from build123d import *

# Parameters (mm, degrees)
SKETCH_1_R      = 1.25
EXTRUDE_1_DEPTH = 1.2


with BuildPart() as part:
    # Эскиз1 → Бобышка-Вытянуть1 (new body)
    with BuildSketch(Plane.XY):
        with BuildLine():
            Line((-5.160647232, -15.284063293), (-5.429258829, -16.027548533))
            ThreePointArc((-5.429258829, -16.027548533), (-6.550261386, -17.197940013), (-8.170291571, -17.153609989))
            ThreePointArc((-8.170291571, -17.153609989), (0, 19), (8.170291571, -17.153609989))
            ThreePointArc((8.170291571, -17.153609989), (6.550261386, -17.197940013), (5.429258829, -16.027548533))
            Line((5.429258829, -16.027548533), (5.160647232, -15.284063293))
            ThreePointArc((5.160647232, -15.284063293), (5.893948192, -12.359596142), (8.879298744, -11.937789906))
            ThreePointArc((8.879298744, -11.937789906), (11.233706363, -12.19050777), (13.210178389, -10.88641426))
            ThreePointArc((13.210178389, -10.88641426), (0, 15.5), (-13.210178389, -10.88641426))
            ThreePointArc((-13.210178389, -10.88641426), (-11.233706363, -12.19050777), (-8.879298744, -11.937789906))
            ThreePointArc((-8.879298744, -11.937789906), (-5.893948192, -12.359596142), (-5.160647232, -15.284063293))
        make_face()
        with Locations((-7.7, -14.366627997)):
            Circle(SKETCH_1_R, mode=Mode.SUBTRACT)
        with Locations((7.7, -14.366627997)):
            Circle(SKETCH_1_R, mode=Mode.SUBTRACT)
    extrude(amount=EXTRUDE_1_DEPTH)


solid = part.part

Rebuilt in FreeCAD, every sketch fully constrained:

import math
import FreeCAD as App
import Part
import Sketcher

doc = App.newDocument("Part")
body = doc.addObject("PartDesign::Body", "Body")

sketch1 = body.newObject("Sketcher::SketchObject", "Sketch")
sketch1.AttachmentSupport = (doc.getObject("XY_Plane"), [""])
sketch1.MapMode = "FlatFace"
sketch1.addGeometry([
    Part.LineSegment(App.Vector(-5.4, -16, 0), App.Vector(-5.2, -15.3, 0)),
    Part.ArcOfCircle(Part.Circle(App.Vector(-7.7, -14.4, 0), App.Vector(0, 0, 1), 2.7), math.radians(-20), math.radians(116)),
    Part.ArcOfCircle(Part.Circle(App.Vector(-10.4, -8.8, 0), App.Vector(0, 0, 1), 3.5), math.radians(-143), math.radians(-64)),
    Part.ArcOfCircle(Part.Circle(App.Vector(0, -1, 0), App.Vector(0, 0, 1), 16.5), math.radians(-37), math.radians(217)),
    Part.ArcOfCircle(Part.Circle(App.Vector(10.4, -8.8, 0), App.Vector(0, 0, 1), 3.5), math.radians(-116), math.radians(-37)),
    Part.ArcOfCircle(Part.Circle(App.Vector(7.7, -14.4, 0), App.Vector(0, 0, 1), 2.7), math.radians(64), math.radians(200)),
    Part.LineSegment(App.Vector(5.2, -15.3, 0), App.Vector(5.4, -16, 0)),
    Part.ArcOfCircle(Part.Circle(App.Vector(7.3, -15.3, 0), App.Vector(0, 0, 1), 2), math.radians(-160), math.radians(-65)),
    Part.ArcOfCircle(Part.Circle(App.Vector(0, 0, 0), App.Vector(0, 0, 1), 19), math.radians(-65), math.radians(245)),
    Part.ArcOfCircle(Part.Circle(App.Vector(-7.3, -15.3, 0), App.Vector(0, 0, 1), 2), math.radians(-115), math.radians(-20)),
    Part.Circle(App.Vector(7.7, -14.4, 0), App.Vector(0, 0, 1), 1.2),
    Part.Circle(App.Vector(-7.7, -14.4, 0), App.Vector(0, 0, 1), 1.2),
], False)
sketch1.addConstraint([
    Sketcher.Constraint("Tangent", 0, 2, 1, 1),
    Sketcher.Constraint("Tangent", 1, 2, 2, 2),
    Sketcher.Constraint("Tangent", 2, 1, 3, 2),
    Sketcher.Constraint("Tangent", 3, 1, 4, 2),
    Sketcher.Constraint("Tangent", 4, 1, 5, 1),
    Sketcher.Constraint("Tangent", 5, 2, 6, 1),
    Sketcher.Constraint("Tangent", 6, 2, 7, 1),
    Sketcher.Constraint("Tangent", 7, 2, 8, 1),
    Sketcher.Constraint("Tangent", 8, 2, 9, 1),
    Sketcher.Constraint("Tangent", 9, 2, 0, 1),
    Sketcher.Constraint("Coincident", 8, 3, -1, 1),
    Sketcher.Constraint("Coincident", 10, 3, 5, 3),
    Sketcher.Constraint("Coincident", 11, 3, 1, 3),
    Sketcher.Constraint("Equal", 2, 4),
    Sketcher.Constraint("Equal", 1, 5),
    Sketcher.Constraint("Equal", 7, 9),
    Sketcher.Constraint("Equal", 10, 11),
    Sketcher.Constraint("Symmetric", 2, 3, 4, 3, -2),
    Sketcher.Constraint("Symmetric", 0, 2, 5, 2, -2),
    Sketcher.Constraint("Radius", 7, 2.0),
    Sketcher.Constraint("Radius", 8, 19.0),
    Sketcher.Constraint("Diameter", 10, 2.5),
    Sketcher.Constraint("Radius", 1, 2.7),
    Sketcher.Constraint("Radius", 2, 3.5),
    Sketcher.Constraint("Radius", 3, 16.5),
    Sketcher.Constraint("DistanceY", 3, 3, -1, 1, 1.0),
    Sketcher.Constraint("DistanceX", 1, 3, -1, 1, 7.7),
    Sketcher.Constraint("DistanceX", 1, 2, -1, 1, 8.879299),
    Sketcher.Constraint("Distance", 0, 0.79052),
])
pad1 = body.newObject("PartDesign::Pad", "Pad")
pad1.Profile = sketch1
pad1.Length = 1.2

doc.recompute()
